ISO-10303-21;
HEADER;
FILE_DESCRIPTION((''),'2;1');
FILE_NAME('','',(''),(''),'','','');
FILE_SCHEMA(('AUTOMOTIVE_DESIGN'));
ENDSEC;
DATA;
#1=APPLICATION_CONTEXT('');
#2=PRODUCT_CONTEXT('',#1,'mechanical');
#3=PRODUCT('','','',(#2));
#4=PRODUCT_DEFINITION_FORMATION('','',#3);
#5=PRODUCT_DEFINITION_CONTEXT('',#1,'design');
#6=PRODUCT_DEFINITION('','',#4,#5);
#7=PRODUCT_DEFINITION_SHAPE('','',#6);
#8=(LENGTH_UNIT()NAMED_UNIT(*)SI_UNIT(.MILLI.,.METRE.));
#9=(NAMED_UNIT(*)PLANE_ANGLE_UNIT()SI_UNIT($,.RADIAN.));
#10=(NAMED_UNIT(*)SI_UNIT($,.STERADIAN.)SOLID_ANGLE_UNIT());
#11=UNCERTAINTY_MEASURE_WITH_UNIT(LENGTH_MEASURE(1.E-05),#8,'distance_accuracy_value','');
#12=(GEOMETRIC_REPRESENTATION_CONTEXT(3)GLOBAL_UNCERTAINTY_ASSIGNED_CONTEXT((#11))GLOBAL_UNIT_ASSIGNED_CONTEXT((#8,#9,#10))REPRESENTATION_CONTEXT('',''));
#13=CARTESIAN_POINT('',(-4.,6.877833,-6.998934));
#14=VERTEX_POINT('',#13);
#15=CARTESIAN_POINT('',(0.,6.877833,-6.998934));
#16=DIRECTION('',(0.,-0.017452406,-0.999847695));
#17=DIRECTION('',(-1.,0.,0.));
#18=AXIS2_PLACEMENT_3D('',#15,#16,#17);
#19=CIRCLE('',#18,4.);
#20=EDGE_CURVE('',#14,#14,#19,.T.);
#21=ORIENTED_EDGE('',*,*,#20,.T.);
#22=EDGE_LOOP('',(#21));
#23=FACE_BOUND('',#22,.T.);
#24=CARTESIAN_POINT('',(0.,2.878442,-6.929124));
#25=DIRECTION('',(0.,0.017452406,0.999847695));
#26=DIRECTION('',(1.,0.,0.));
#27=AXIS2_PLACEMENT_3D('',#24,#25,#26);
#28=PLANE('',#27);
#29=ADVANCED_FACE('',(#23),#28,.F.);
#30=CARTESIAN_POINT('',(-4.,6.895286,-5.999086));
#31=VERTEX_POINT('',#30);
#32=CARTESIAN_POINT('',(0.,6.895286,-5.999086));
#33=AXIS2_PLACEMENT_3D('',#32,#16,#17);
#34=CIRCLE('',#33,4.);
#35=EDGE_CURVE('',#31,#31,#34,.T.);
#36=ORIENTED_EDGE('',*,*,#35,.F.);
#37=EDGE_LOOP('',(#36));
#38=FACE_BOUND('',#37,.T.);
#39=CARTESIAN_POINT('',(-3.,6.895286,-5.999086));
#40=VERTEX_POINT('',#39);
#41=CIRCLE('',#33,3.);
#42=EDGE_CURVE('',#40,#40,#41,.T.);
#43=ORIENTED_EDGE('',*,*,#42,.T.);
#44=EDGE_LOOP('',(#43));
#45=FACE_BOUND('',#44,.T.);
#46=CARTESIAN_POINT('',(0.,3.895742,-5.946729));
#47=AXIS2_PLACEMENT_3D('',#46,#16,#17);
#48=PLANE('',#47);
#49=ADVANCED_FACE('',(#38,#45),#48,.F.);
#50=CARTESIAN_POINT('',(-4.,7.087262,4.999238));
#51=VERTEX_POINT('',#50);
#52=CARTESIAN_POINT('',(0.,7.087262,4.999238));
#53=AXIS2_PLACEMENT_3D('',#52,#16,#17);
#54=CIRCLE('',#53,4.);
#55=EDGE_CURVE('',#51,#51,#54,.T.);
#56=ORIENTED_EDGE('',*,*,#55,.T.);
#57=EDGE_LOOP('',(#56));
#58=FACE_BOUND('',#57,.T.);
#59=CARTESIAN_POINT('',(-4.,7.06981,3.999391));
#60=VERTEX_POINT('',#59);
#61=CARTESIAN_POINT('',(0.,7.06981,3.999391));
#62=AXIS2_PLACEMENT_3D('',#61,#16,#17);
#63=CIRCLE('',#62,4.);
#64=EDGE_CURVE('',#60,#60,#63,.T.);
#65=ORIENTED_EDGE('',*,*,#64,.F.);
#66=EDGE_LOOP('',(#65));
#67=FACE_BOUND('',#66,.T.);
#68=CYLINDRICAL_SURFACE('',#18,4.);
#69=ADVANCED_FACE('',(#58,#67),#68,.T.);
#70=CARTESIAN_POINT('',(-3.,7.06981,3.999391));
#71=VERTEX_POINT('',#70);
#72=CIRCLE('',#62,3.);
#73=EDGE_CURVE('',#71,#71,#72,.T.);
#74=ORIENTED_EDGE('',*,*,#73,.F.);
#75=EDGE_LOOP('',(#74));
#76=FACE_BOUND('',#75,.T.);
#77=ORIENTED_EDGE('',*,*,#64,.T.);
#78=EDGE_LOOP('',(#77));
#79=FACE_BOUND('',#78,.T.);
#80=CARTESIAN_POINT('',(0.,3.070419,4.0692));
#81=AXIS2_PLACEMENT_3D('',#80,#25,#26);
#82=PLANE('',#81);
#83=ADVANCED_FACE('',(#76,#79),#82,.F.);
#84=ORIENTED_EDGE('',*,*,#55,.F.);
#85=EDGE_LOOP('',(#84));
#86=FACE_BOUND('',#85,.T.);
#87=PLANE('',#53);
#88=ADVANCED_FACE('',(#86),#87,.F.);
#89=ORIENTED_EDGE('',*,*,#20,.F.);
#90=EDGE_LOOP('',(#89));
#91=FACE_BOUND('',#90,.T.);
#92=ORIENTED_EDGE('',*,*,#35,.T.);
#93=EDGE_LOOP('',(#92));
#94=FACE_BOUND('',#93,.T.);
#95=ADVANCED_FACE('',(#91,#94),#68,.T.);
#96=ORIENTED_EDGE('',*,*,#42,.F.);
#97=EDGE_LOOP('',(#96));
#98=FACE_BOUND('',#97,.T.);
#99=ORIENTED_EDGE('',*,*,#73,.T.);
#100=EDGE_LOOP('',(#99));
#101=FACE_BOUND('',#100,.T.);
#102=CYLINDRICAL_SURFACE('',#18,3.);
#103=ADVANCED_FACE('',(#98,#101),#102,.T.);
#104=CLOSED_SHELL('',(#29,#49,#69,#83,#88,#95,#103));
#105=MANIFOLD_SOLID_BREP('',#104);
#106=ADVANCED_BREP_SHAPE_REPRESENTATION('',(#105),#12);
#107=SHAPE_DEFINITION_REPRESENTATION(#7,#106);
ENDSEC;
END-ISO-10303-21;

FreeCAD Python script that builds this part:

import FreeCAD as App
import Part
import Sketcher
from FreeCAD import Vector
Q = App.Units.Quantity


def add_polygon(sketch, points):
    """Adds a closed chain of lines whose ends are joined by coincident constraints."""
    first, n = sketch.GeometryCount, len(points)
    for a, b in zip(points, points[1:] + points[:1]):
        sketch.addGeometry(Part.LineSegment(App.Vector(*a, 0), App.Vector(*b, 0)), False)
    for i in range(n):
        sketch.addConstraint(Sketcher.Constraint("Coincident", first + i, 2, first + (i + 1) % n, 1))

doc = App.newDocument("Part")
body = doc.addObject("PartDesign::Body", "Body")

sketch1 = body.newObject("Sketcher::SketchObject", "Sketch")
sketch1.AttachmentSupport = (doc.getObject("XY_Plane"), [""])
sketch1.MapMode = "FlatFace"
add_polygon(sketch1, [(0, 0), (0, 12), (-4, 12), (-4, 11), (-3, 11), (-3, 1), (-4, 1), (-4, 0)])
sketch1.addConstraint([
    Sketcher.Constraint("Vertical", 0),
    Sketcher.Constraint("Horizontal", 1),
    Sketcher.Constraint("Vertical", 2),
    Sketcher.Constraint("Horizontal", 3),
    Sketcher.Constraint("Vertical", 4),
    Sketcher.Constraint("Horizontal", 5),
    Sketcher.Constraint("Vertical", 6),
    Sketcher.Constraint("Horizontal", 7),
    Sketcher.Constraint("Coincident", 7, 2, -1, 1),
    Sketcher.Constraint("Vertical", 2, 2, 5, 2),
    Sketcher.Constraint("Equal", 5, 2),
    Sketcher.Constraint("Equal", 2, 6),
    Sketcher.Constraint("DistanceX", 1, 2, 1, 1, Q("4 mm")),
    Sketcher.Constraint("DistanceX", 3, 1, 3, 2, Q("1 mm")),
    Sketcher.Constraint("DistanceY", 0, 1, 0, 2, Q("12 mm")),
])
revolution = body.newObject("PartDesign::Revolution", "Revolution")
revolution.Profile = sketch1
revolution.ReferenceAxis = (sketch1, ["V_Axis"])
revolution.Angle = 360
body2 = doc.addObject("PartDesign::Body", "Body001")
doc.recompute()

body.Placement = App.Placement(Vector(0, 6.877833, -6.998934), App.Rotation(Vector(0.573961956, 0.58406793, 0.573961956), 119.424339))
boolean = body2.newObject("PartDesign::Boolean", "Boolean")
boolean.Type = "Fuse"
boolean.addObjects([body])

doc.recompute()
